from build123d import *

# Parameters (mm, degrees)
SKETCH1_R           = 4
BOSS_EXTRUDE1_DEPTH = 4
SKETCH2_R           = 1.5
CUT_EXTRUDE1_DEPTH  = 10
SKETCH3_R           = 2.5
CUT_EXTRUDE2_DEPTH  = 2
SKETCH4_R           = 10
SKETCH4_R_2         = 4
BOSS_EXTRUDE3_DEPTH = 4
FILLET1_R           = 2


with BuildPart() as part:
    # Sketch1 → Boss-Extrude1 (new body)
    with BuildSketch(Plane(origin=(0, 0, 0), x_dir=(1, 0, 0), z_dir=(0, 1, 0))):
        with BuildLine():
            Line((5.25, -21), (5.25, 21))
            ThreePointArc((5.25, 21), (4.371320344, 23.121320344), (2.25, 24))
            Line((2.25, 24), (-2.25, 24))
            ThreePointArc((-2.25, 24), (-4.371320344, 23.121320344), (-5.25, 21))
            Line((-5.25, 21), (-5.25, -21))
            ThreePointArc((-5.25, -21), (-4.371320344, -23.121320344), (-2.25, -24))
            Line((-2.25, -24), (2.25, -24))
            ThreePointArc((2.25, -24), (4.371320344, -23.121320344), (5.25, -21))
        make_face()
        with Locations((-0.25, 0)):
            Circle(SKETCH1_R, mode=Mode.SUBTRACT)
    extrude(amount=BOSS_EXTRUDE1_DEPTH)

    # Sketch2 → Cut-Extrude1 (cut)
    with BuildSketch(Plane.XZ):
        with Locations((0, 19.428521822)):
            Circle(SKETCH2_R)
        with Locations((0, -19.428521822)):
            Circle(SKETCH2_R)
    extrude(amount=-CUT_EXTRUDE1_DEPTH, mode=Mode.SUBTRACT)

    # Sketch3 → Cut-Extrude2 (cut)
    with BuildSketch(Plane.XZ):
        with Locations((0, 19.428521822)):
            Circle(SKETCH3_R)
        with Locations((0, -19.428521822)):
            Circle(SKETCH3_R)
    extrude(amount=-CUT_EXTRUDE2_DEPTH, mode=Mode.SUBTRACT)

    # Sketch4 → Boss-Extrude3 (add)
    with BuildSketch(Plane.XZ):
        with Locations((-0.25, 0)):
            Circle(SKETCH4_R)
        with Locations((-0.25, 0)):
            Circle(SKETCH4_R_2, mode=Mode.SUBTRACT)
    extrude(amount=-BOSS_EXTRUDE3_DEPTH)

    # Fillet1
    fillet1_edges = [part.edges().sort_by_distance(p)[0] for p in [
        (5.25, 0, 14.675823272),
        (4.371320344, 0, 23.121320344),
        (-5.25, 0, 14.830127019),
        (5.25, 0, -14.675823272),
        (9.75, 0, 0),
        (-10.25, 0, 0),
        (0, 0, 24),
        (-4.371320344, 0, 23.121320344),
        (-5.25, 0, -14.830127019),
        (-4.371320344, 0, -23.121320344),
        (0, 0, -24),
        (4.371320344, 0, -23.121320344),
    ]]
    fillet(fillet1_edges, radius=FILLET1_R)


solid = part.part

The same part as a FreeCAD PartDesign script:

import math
import FreeCAD as App
import Part
import Sketcher
from FreeCAD import Vector
Q = App.Units.Quantity


def edges_at(feature, points):
    """Names of the edges that pass closest to the given points."""
    edges = feature.Shape.Edges
    near = lambda p: min(range(len(edges)), key=lambda i: edges[i].distToShape(Part.Vertex(*p))[0])
    return sorted({f"Edge{near(p) + 1}" for p in points})

doc = App.newDocument("Part")
params = doc.addObject("Spreadsheet::Sheet", "Params")
for row, (alias, value) in enumerate([
    ("sketch1_diameter", "8 mm"),
    ("sketch1_radius", "3 mm"),
    ("sketch1_height", "42 mm"),
    ("sketch1_width", "4.5 mm"),
    ("pad1_length", "4 mm"),
    ("sketch2_diameter", "3 mm"),
    ("pocket1_length", "10 mm"),
    ("sketch3_diameter", "5 mm"),
    ("pocket2_length", "2 mm"),
    ("sketch4_diameter", "20 mm"),
    ("sketch4_diameter2", "8 mm"),
    ("pad2_length", "4 mm"),
    ("fillet_radius", "2 mm"),
], start=1):
    params.set(f"A{row}", alias)
    params.set(f"B{row}", "=" + value)
    params.setAlias(f"B{row}", alias)

body = doc.addObject("PartDesign::Body", "Body")

# Sketch on XZ plane
sketch1 = body.newObject("Sketcher::SketchObject", "Sketch")
sketch1.AttachmentSupport = (doc.getObject("XZ_Plane"), [""])
sketch1.MapMode = "FlatFace"
sketch1.addGeometry([
    Part.LineSegment(Vector(5.2, 21, 0), Vector(5.2, -21, 0)),  # 0
    Part.ArcOfCircle(Part.Circle(Vector(2.3, -21, 0), Vector(0, 0, 1), 3), math.radians(-90), math.radians(0)),  # 1
    Part.LineSegment(Vector(2.2, -24, 0), Vector(-2.2, -24, 0)),  # 2
    Part.ArcOfCircle(Part.Circle(Vector(-2.3, -21, 0), Vector(0, 0, 1), 3), math.radians(180), math.radians(270)),  # 3
    Part.LineSegment(Vector(-5.2, -21, 0), Vector(-5.2, 21, 0)),  # 4
    Part.ArcOfCircle(Part.Circle(Vector(-2.3, 21, 0), Vector(0, 0, 1), 3), math.radians(90), math.radians(180)),  # 5
    Part.LineSegment(Vector(-2.2, 24, 0), Vector(2.2, 24, 0)),  # 6
    Part.ArcOfCircle(Part.Circle(Vector(2.3, 21, 0), Vector(0, 0, 1), 3), math.radians(0), math.radians(90)),  # 7
    Part.Circle(Vector(-0.2, 0, 0), Vector(0, 0, 1), 4),  # 8
], False)
sketch1.addConstraint([
    Sketcher.Constraint("Tangent", 0, 2, 1, 2),
    Sketcher.Constraint("Tangent", 1, 1, 2, 1),
    Sketcher.Constraint("Tangent", 2, 2, 3, 2),
    Sketcher.Constraint("Tangent", 3, 1, 4, 1),
    Sketcher.Constraint("Tangent", 4, 2, 5, 2),
    Sketcher.Constraint("Tangent", 5, 1, 6, 1),
    Sketcher.Constraint("Tangent", 6, 2, 7, 2),
    Sketcher.Constraint("Tangent", 7, 1, 0, 1),
    Sketcher.Constraint("Vertical", 0),
    Sketcher.Constraint("Horizontal", 2),
    Sketcher.Constraint("Vertical", 4),
    Sketcher.Constraint("Horizontal", 6),
    Sketcher.Constraint("Equal", 1, 3),
    Sketcher.Constraint("Equal", 3, 5),
    Sketcher.Constraint("Equal", 5, 7),
    Sketcher.Constraint("Symmetric", 1, 3, 5, 3, -1, 1),
    Sketcher.Constraint("PointOnObject", 8, 3, -1),
    Sketcher.Constraint("Diameter", 8, Q("8 mm")),
    Sketcher.Constraint("Radius", 1, Q("3 mm")),
    Sketcher.Constraint("DistanceY", 0, 2, 0, 1, Q("42 mm")),
    Sketcher.Constraint("DistanceX", 2, 2, 2, 1, Q("4.5 mm")),
    Sketcher.Constraint("DistanceX", 3, 3, 8, 3, Q("2 mm")),
])
sketch1.setExpression("Constraints[17]", "Params.sketch1_diameter")
sketch1.setExpression("Constraints[18]", "Params.sketch1_radius")
sketch1.setExpression("Constraints[19]", "Params.sketch1_height")
sketch1.setExpression("Constraints[20]", "Params.sketch1_width")
pad1 = body.newObject("PartDesign::Pad", "Pad")
pad1.Profile = sketch1
pad1.setExpression("Length", "Params.pad1_length")
pad1.Reversed = True

# Sketch on XZ plane
sketch2 = body.newObject("Sketcher::SketchObject", "Sketch001")
sketch2.AttachmentSupport = (doc.getObject("XZ_Plane"), [""])
sketch2.MapMode = "FlatFace"
sketch2.addGeometry([
    Part.Circle(Vector(0, 19.4, 0), Vector(0, 0, 1), 1.5),
    Part.Circle(Vector(0, -19.4, 0), Vector(0, 0, 1), 1.5),
], False)
sketch2.addConstraint([
    Sketcher.Constraint("Equal", 0, 1),
    Sketcher.Constraint("Symmetric", 0, 3, 1, 3, -1, 1),
    Sketcher.Constraint("PointOnObject", 0, 3, -2),
    Sketcher.Constraint("Diameter", 0, Q("3 mm")),
    Sketcher.Constraint("DistanceY", -1, 1, 0, 3, Q("19.428522 mm")),
])
sketch2.setExpression("Constraints[3]", "Params.sketch2_diameter")
pocket1 = body.newObject("PartDesign::Pocket", "Pocket")
pocket1.Profile = sketch2
pocket1.setExpression("Length", "Params.pocket1_length")

# Sketch on XZ plane
sketch3 = body.newObject("Sketcher::SketchObject", "Sketch002")
sketch3.AttachmentSupport = (doc.getObject("XZ_Plane"), [""])
sketch3.MapMode = "FlatFace"
sketch3.addGeometry([
    Part.Circle(Vector(0, 19.4, 0), Vector(0, 0, 1), 2.5),
    Part.Circle(Vector(0, -19.4, 0), Vector(0, 0, 1), 2.5),
], False)
sketch3.addConstraint([
    Sketcher.Constraint("Equal", 0, 1),
    Sketcher.Constraint("Symmetric", 0, 3, 1, 3, -1, 1),
    Sketcher.Constraint("PointOnObject", 0, 3, -2),
    Sketcher.Constraint("Diameter", 0, Q("5 mm")),
    Sketcher.Constraint("DistanceY", -1, 1, 0, 3, Q("19.428522 mm")),
])
sketch3.setExpression("Constraints[3]", "Params.sketch3_diameter")
pocket2 = body.newObject("PartDesign::Pocket", "Pocket001")
pocket2.Profile = sketch3
pocket2.setExpression("Length", "Params.pocket2_length")

# Sketch on XZ plane
sketch4 = body.newObject("Sketcher::SketchObject", "Sketch003")
sketch4.AttachmentSupport = (doc.getObject("XZ_Plane"), [""])
sketch4.MapMode = "FlatFace"
sketch4.addGeometry([
    Part.Circle(Vector(-0.2, 0, 0), Vector(0, 0, 1), 10),
    Part.Circle(Vector(-0.2, 0, 0), Vector(0, 0, 1), 4),
], False)
sketch4.addConstraint([
    Sketcher.Constraint("Coincident", 1, 3, 0, 3),
    Sketcher.Constraint("PointOnObject", 0, 3, -1),
    Sketcher.Constraint("Diameter", 0, Q("20 mm")),
    Sketcher.Constraint("Diameter", 1, Q("8 mm")),
    Sketcher.Constraint("DistanceX", 0, 3, -1, 1, Q("0.25 mm")),
])
sketch4.setExpression("Constraints[2]", "Params.sketch4_diameter")
sketch4.setExpression("Constraints[3]", "Params.sketch4_diameter2")
pad2 = body.newObject("PartDesign::Pad", "Pad001")
pad2.Profile = sketch4
pad2.setExpression("Length", "Params.pad2_length")
pad2.Reversed = True
doc.recompute()

fillet = body.newObject("PartDesign::Fillet", "Fillet")
fillet.Base = (pad2, edges_at(pad2, [
    (5.25, 0, 14.676),
    (4.371, 0, 23.121),
    (-5.25, 0, 14.83),
    (5.25, 0, -14.676),
    (9.75, 0, 0),
    (-10.25, 0, 0),
    (0, 0, 24),
    (-4.371, 0, 23.121),
    (-5.25, 0, -14.83),
    (-4.371, 0, -23.121),
    (0, 0, -24),
    (4.371, 0, -23.121),
]))
fillet.setExpression("Radius", "Params.fillet_radius")

doc.recompute()
